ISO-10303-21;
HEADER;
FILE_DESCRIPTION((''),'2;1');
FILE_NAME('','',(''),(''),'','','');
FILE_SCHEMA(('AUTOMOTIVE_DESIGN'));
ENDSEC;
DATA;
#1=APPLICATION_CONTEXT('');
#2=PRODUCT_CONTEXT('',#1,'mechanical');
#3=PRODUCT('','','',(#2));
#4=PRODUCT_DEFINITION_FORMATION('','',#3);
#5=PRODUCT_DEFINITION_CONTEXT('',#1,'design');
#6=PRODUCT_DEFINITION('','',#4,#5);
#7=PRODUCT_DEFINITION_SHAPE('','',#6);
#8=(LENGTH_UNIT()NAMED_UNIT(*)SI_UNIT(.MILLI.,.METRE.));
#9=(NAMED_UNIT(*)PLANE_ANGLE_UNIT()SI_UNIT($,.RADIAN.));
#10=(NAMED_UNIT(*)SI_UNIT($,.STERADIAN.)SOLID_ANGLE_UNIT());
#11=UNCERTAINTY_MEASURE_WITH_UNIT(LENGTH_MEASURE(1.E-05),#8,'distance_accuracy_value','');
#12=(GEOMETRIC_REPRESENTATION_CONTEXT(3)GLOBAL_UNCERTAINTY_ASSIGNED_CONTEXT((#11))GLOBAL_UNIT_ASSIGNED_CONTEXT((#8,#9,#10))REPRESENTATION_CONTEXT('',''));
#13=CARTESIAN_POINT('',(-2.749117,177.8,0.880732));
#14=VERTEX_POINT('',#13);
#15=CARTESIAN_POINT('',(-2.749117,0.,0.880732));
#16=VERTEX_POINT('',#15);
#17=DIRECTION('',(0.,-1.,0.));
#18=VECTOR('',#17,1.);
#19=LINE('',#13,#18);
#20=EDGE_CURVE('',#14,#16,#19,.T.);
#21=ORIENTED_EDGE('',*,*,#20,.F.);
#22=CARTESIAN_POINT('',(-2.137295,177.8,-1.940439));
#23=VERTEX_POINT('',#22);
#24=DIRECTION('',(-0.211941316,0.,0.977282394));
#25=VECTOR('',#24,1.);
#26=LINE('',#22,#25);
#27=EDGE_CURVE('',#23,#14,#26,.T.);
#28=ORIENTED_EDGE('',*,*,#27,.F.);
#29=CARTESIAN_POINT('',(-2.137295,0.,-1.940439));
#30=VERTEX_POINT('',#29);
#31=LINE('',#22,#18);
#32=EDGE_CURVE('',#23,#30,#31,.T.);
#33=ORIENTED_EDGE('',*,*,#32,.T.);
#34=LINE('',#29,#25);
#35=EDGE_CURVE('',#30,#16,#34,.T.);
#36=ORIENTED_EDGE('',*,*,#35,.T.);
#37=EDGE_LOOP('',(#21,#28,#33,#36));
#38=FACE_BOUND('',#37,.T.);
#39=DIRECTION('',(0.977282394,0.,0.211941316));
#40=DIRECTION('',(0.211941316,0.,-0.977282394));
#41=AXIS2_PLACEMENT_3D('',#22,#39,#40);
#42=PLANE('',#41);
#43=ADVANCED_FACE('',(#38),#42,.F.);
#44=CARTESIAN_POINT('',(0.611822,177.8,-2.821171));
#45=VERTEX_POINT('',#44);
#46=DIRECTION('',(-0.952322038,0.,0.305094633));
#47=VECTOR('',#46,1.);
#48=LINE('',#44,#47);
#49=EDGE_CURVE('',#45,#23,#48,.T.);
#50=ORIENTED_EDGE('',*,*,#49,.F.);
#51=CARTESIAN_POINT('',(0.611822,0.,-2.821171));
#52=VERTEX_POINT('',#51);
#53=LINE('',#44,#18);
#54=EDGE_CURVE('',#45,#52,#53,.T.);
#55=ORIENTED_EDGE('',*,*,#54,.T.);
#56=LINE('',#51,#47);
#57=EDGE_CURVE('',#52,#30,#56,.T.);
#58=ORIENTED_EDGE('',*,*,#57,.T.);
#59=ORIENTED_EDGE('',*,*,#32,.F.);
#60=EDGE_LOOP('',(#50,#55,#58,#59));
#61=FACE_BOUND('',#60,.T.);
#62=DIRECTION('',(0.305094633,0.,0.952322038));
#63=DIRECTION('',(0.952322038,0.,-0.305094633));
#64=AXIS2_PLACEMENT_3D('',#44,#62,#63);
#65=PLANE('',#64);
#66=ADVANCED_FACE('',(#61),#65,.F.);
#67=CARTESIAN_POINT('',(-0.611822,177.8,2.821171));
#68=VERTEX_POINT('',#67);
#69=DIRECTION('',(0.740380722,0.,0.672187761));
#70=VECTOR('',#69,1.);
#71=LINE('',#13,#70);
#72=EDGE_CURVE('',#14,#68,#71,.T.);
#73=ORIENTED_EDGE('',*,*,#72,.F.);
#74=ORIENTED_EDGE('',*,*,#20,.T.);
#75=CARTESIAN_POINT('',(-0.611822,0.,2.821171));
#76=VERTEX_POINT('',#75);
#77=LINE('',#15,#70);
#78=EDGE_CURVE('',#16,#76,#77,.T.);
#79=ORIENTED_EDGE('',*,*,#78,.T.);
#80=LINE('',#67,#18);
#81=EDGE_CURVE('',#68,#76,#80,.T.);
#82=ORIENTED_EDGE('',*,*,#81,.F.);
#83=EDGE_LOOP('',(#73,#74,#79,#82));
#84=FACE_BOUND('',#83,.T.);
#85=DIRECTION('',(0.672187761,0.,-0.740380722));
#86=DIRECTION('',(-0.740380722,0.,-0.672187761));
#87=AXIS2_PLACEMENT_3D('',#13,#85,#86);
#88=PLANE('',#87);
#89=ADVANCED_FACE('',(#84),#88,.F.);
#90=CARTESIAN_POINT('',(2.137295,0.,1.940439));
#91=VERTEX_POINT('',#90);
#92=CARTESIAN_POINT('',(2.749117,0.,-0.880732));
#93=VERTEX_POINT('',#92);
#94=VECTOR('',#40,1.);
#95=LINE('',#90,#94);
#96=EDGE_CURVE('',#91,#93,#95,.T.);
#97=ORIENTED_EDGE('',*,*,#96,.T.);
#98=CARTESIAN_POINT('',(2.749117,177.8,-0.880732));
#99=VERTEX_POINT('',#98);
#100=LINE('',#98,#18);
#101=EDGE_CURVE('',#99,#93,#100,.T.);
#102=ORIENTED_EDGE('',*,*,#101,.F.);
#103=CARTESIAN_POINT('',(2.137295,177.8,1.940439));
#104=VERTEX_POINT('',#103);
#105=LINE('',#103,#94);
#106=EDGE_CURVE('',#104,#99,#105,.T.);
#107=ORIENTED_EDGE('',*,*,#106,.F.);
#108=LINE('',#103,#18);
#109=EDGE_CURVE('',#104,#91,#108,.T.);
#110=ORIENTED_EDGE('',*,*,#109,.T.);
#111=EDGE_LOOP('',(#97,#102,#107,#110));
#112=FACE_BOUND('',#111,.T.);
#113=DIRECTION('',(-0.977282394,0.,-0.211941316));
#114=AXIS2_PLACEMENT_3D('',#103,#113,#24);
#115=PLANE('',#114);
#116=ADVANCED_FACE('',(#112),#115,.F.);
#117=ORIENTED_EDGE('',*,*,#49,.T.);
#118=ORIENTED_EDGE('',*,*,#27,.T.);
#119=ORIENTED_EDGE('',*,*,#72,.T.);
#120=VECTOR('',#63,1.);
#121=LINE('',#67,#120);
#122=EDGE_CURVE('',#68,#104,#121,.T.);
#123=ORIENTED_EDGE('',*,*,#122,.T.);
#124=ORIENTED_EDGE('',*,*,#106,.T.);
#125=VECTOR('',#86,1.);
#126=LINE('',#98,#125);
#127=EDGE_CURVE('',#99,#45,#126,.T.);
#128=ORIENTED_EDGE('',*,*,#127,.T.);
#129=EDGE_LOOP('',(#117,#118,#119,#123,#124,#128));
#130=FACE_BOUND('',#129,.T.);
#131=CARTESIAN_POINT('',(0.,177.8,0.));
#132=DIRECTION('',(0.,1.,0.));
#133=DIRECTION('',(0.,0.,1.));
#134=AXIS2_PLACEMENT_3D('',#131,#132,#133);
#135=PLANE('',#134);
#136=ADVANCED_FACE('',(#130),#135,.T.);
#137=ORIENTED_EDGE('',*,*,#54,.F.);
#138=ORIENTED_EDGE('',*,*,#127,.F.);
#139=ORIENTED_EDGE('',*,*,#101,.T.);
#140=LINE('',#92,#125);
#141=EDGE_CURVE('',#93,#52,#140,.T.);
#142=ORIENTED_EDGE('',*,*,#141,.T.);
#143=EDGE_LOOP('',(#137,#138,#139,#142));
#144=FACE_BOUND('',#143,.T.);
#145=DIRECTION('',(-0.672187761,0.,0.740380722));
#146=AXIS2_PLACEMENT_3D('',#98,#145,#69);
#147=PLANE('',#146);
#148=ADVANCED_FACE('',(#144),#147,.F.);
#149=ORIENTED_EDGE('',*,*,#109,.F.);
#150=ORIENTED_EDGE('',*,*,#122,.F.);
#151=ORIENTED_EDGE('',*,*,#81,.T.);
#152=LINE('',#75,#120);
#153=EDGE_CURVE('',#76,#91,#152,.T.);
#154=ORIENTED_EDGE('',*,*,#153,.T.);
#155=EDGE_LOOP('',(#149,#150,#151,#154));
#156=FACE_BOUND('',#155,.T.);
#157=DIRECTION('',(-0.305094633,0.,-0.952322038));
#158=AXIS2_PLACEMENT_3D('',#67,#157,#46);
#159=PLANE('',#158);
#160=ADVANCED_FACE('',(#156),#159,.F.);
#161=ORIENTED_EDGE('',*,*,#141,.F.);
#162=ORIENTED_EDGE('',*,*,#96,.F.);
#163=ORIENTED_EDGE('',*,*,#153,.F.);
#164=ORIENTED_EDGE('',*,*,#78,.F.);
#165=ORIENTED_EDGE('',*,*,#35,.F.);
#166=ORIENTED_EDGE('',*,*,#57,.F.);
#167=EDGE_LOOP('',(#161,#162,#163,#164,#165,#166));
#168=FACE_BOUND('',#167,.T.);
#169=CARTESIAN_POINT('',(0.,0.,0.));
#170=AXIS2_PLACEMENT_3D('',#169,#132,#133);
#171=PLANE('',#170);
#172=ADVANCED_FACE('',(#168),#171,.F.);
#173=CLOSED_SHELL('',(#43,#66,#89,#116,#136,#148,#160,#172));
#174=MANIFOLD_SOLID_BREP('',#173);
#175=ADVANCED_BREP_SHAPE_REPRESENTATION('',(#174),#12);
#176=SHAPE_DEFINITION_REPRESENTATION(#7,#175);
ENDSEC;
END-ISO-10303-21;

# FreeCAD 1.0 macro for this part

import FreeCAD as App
import Part
import Sketcher
from FreeCAD import Vector
Q = App.Units.Quantity


def add_polygon(sketch, points):
    """Adds a closed chain of lines whose ends are joined by coincident constraints."""
    first, n = sketch.GeometryCount, len(points)
    for a, b in zip(points, points[1:] + points[:1]):
        sketch.addGeometry(Part.LineSegment(App.Vector(*a, 0), App.Vector(*b, 0)), False)
    for i in range(n):
        sketch.addConstraint(Sketcher.Constraint("Coincident", first + i, 2, first + (i + 1) % n, 1))

doc = App.newDocument("Part")
body = doc.addObject("PartDesign::Body", "Body")

# Sketch on XZ plane
sketch1 = body.newObject("Sketcher::SketchObject", "Sketch")
sketch1.AttachmentSupport = (doc.getObject("XZ_Plane"), [""])
sketch1.MapMode = "FlatFace"
add_polygon(sketch1, [(2.1, 1.9), (2.7, -0.9), (0.6, -2.8), (-2.1, -1.9), (-2.7, 0.9), (-0.6, 2.8)])  # lines 0-5
sketch1.addConstraint([
    Sketcher.Constraint("Symmetric", 0, 2, 3, 2, -1, 1),
    Sketcher.Constraint("Symmetric", 1, 2, 4, 2, -1, 1),
    Sketcher.Constraint("Symmetric", 2, 2, 5, 2, -1, 1),
    Sketcher.Constraint("Equal", 0, 1),
    Sketcher.Constraint("Equal", 1, 2),
    Sketcher.Constraint("Distance", 0, 2.886751),
    Sketcher.Constraint("DistanceX", -1, 1, 1, 2, 0.611822),
    Sketcher.Constraint("DistanceY", 1, 2, -1, 1, 2.821171),
    Sketcher.Constraint("DistanceY", 2, 2, -1, 1, 1.940439),
])
pad1 = body.newObject("PartDesign::Pad", "Pad")
pad1.Profile = sketch1
pad1.Length = Q("7 in")
pad1.Reversed = True

doc.recompute()
